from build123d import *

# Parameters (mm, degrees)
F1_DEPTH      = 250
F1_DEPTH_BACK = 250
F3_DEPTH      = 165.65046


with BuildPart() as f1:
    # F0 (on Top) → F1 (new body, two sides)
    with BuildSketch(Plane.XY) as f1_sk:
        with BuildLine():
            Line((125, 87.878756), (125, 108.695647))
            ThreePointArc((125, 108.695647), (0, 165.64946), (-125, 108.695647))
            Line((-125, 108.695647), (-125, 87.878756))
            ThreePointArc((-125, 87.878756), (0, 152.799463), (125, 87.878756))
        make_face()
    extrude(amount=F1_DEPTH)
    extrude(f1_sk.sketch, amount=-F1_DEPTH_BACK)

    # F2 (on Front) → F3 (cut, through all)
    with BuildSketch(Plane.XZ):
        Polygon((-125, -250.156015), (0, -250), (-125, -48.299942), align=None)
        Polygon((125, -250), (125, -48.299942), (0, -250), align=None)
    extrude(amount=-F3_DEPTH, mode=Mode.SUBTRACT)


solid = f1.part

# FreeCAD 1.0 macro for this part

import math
import FreeCAD as App
import Part
import Sketcher

V = App.Vector


def add_polygon(sketch, points):
    """Adds a closed chain of lines whose ends are joined by coincident constraints."""
    first, n = sketch.GeometryCount, len(points)
    for a, b in zip(points, points[1:] + points[:1]):
        sketch.addGeometry(Part.LineSegment(App.Vector(*a, 0), App.Vector(*b, 0)), False)
    for i in range(n):
        sketch.addConstraint(Sketcher.Constraint("Coincident", first + i, 2, first + (i + 1) % n, 1))

doc = App.newDocument("Part")
body = doc.addObject("PartDesign::Body", "Body")

# Sketch on XY plane
sketch1 = doc.addObject("Sketcher::SketchObject", "Sketch")
body.addObject(sketch1)
sketch1.AttachmentSupport = (doc.XY_Plane, [""])
sketch1.MapMode = "FlatFace"
sketch1.addGeometry(Part.LineSegment(V(125, 87.878756, 0), V(125, 108.695647, 0)), False)
sketch1.addGeometry(Part.ArcOfCircle(Part.Circle(V(0, -0.000001, 0), V(0, 0, 1), 165.649461), math.radians(41.009086), math.radians(138.990914)), False)
sketch1.addGeometry(Part.LineSegment(V(-125, 108.695647, 0), V(-125, 87.878756, 0)), False)
sketch1.addGeometry(Part.ArcOfCircle(Part.Circle(V(0, 0.000001, 0), V(0, 0, 1), 152.799462), math.radians(35.10837), math.radians(144.89163)), False)
sketch1.addConstraint(Sketcher.Constraint("Coincident", 0, 2, 1, 1))
sketch1.addConstraint(Sketcher.Constraint("Coincident", 1, 2, 2, 1))
sketch1.addConstraint(Sketcher.Constraint("Coincident", 2, 2, 3, 2))
sketch1.addConstraint(Sketcher.Constraint("Coincident", 3, 1, 0, 1))
sketch1.addConstraint(Sketcher.Constraint("Vertical", 0))
sketch1.addConstraint(Sketcher.Constraint("Vertical", 2))
sketch1.addConstraint(Sketcher.Constraint("Coincident", 1, 3, -1, 1))
sketch1.addConstraint(Sketcher.Constraint("Coincident", 3, 3, -1, 1))
sketch1.addConstraint(Sketcher.Constraint("Horizontal", 0, 2, 1, 2))
sketch1.addConstraint(Sketcher.Constraint("DistanceX", -1, 1, 0, 2, 125.0))
sketch1.addConstraint(Sketcher.Constraint("Radius", 1, 165.649461))
sketch1.addConstraint(Sketcher.Constraint("Radius", 3, 152.799462))
pad1 = doc.addObject("PartDesign::Pad", "Pad")
body.addObject(pad1)
pad1.Profile = sketch1
pad1.Type = "TwoLengths"
pad1.Length = 250
pad1.Length2 = 250

# Sketch on XZ plane
sketch2 = doc.addObject("Sketcher::SketchObject", "Sketch001")
body.addObject(sketch2)
sketch2.AttachmentSupport = (doc.XZ_Plane, [""])
sketch2.MapMode = "FlatFace"
add_polygon(sketch2, [(-125, -250.156015), (0, -250), (-125, -48.299942)])  # lines 0-2
add_polygon(sketch2, [(125, -250), (125, -48.299942), (0, -250)])  # lines 3-5
sketch2.addConstraint(Sketcher.Constraint("Vertical", 2))
sketch2.addConstraint(Sketcher.Constraint("Vertical", 3))
sketch2.addConstraint(Sketcher.Constraint("Horizontal", 5))
sketch2.addConstraint(Sketcher.Constraint("Coincident", 4, 2, 0, 2))
sketch2.addConstraint(Sketcher.Constraint("Symmetric", 1, 2, 3, 2, -2))
sketch2.addConstraint(Sketcher.Constraint("PointOnObject", 0, 2, -2))
sketch2.addConstraint(Sketcher.Constraint("DistanceX", 5, 1, 5, 2, 125.0))
sketch2.addConstraint(Sketcher.Constraint("DistanceY", 0, 2, -1, 1, 250.0))
sketch2.addConstraint(Sketcher.Constraint("DistanceY", 3, 1, 3, 2, 201.700058))
sketch2.addConstraint(Sketcher.Constraint("DistanceY", 2, 2, 2, 1, 201.856073))
pocket1 = doc.addObject("PartDesign::Pocket", "Pocket")
body.addObject(pocket1)
pocket1.Profile = sketch2
pocket1.Type = "ThroughAll"

doc.recompute()
